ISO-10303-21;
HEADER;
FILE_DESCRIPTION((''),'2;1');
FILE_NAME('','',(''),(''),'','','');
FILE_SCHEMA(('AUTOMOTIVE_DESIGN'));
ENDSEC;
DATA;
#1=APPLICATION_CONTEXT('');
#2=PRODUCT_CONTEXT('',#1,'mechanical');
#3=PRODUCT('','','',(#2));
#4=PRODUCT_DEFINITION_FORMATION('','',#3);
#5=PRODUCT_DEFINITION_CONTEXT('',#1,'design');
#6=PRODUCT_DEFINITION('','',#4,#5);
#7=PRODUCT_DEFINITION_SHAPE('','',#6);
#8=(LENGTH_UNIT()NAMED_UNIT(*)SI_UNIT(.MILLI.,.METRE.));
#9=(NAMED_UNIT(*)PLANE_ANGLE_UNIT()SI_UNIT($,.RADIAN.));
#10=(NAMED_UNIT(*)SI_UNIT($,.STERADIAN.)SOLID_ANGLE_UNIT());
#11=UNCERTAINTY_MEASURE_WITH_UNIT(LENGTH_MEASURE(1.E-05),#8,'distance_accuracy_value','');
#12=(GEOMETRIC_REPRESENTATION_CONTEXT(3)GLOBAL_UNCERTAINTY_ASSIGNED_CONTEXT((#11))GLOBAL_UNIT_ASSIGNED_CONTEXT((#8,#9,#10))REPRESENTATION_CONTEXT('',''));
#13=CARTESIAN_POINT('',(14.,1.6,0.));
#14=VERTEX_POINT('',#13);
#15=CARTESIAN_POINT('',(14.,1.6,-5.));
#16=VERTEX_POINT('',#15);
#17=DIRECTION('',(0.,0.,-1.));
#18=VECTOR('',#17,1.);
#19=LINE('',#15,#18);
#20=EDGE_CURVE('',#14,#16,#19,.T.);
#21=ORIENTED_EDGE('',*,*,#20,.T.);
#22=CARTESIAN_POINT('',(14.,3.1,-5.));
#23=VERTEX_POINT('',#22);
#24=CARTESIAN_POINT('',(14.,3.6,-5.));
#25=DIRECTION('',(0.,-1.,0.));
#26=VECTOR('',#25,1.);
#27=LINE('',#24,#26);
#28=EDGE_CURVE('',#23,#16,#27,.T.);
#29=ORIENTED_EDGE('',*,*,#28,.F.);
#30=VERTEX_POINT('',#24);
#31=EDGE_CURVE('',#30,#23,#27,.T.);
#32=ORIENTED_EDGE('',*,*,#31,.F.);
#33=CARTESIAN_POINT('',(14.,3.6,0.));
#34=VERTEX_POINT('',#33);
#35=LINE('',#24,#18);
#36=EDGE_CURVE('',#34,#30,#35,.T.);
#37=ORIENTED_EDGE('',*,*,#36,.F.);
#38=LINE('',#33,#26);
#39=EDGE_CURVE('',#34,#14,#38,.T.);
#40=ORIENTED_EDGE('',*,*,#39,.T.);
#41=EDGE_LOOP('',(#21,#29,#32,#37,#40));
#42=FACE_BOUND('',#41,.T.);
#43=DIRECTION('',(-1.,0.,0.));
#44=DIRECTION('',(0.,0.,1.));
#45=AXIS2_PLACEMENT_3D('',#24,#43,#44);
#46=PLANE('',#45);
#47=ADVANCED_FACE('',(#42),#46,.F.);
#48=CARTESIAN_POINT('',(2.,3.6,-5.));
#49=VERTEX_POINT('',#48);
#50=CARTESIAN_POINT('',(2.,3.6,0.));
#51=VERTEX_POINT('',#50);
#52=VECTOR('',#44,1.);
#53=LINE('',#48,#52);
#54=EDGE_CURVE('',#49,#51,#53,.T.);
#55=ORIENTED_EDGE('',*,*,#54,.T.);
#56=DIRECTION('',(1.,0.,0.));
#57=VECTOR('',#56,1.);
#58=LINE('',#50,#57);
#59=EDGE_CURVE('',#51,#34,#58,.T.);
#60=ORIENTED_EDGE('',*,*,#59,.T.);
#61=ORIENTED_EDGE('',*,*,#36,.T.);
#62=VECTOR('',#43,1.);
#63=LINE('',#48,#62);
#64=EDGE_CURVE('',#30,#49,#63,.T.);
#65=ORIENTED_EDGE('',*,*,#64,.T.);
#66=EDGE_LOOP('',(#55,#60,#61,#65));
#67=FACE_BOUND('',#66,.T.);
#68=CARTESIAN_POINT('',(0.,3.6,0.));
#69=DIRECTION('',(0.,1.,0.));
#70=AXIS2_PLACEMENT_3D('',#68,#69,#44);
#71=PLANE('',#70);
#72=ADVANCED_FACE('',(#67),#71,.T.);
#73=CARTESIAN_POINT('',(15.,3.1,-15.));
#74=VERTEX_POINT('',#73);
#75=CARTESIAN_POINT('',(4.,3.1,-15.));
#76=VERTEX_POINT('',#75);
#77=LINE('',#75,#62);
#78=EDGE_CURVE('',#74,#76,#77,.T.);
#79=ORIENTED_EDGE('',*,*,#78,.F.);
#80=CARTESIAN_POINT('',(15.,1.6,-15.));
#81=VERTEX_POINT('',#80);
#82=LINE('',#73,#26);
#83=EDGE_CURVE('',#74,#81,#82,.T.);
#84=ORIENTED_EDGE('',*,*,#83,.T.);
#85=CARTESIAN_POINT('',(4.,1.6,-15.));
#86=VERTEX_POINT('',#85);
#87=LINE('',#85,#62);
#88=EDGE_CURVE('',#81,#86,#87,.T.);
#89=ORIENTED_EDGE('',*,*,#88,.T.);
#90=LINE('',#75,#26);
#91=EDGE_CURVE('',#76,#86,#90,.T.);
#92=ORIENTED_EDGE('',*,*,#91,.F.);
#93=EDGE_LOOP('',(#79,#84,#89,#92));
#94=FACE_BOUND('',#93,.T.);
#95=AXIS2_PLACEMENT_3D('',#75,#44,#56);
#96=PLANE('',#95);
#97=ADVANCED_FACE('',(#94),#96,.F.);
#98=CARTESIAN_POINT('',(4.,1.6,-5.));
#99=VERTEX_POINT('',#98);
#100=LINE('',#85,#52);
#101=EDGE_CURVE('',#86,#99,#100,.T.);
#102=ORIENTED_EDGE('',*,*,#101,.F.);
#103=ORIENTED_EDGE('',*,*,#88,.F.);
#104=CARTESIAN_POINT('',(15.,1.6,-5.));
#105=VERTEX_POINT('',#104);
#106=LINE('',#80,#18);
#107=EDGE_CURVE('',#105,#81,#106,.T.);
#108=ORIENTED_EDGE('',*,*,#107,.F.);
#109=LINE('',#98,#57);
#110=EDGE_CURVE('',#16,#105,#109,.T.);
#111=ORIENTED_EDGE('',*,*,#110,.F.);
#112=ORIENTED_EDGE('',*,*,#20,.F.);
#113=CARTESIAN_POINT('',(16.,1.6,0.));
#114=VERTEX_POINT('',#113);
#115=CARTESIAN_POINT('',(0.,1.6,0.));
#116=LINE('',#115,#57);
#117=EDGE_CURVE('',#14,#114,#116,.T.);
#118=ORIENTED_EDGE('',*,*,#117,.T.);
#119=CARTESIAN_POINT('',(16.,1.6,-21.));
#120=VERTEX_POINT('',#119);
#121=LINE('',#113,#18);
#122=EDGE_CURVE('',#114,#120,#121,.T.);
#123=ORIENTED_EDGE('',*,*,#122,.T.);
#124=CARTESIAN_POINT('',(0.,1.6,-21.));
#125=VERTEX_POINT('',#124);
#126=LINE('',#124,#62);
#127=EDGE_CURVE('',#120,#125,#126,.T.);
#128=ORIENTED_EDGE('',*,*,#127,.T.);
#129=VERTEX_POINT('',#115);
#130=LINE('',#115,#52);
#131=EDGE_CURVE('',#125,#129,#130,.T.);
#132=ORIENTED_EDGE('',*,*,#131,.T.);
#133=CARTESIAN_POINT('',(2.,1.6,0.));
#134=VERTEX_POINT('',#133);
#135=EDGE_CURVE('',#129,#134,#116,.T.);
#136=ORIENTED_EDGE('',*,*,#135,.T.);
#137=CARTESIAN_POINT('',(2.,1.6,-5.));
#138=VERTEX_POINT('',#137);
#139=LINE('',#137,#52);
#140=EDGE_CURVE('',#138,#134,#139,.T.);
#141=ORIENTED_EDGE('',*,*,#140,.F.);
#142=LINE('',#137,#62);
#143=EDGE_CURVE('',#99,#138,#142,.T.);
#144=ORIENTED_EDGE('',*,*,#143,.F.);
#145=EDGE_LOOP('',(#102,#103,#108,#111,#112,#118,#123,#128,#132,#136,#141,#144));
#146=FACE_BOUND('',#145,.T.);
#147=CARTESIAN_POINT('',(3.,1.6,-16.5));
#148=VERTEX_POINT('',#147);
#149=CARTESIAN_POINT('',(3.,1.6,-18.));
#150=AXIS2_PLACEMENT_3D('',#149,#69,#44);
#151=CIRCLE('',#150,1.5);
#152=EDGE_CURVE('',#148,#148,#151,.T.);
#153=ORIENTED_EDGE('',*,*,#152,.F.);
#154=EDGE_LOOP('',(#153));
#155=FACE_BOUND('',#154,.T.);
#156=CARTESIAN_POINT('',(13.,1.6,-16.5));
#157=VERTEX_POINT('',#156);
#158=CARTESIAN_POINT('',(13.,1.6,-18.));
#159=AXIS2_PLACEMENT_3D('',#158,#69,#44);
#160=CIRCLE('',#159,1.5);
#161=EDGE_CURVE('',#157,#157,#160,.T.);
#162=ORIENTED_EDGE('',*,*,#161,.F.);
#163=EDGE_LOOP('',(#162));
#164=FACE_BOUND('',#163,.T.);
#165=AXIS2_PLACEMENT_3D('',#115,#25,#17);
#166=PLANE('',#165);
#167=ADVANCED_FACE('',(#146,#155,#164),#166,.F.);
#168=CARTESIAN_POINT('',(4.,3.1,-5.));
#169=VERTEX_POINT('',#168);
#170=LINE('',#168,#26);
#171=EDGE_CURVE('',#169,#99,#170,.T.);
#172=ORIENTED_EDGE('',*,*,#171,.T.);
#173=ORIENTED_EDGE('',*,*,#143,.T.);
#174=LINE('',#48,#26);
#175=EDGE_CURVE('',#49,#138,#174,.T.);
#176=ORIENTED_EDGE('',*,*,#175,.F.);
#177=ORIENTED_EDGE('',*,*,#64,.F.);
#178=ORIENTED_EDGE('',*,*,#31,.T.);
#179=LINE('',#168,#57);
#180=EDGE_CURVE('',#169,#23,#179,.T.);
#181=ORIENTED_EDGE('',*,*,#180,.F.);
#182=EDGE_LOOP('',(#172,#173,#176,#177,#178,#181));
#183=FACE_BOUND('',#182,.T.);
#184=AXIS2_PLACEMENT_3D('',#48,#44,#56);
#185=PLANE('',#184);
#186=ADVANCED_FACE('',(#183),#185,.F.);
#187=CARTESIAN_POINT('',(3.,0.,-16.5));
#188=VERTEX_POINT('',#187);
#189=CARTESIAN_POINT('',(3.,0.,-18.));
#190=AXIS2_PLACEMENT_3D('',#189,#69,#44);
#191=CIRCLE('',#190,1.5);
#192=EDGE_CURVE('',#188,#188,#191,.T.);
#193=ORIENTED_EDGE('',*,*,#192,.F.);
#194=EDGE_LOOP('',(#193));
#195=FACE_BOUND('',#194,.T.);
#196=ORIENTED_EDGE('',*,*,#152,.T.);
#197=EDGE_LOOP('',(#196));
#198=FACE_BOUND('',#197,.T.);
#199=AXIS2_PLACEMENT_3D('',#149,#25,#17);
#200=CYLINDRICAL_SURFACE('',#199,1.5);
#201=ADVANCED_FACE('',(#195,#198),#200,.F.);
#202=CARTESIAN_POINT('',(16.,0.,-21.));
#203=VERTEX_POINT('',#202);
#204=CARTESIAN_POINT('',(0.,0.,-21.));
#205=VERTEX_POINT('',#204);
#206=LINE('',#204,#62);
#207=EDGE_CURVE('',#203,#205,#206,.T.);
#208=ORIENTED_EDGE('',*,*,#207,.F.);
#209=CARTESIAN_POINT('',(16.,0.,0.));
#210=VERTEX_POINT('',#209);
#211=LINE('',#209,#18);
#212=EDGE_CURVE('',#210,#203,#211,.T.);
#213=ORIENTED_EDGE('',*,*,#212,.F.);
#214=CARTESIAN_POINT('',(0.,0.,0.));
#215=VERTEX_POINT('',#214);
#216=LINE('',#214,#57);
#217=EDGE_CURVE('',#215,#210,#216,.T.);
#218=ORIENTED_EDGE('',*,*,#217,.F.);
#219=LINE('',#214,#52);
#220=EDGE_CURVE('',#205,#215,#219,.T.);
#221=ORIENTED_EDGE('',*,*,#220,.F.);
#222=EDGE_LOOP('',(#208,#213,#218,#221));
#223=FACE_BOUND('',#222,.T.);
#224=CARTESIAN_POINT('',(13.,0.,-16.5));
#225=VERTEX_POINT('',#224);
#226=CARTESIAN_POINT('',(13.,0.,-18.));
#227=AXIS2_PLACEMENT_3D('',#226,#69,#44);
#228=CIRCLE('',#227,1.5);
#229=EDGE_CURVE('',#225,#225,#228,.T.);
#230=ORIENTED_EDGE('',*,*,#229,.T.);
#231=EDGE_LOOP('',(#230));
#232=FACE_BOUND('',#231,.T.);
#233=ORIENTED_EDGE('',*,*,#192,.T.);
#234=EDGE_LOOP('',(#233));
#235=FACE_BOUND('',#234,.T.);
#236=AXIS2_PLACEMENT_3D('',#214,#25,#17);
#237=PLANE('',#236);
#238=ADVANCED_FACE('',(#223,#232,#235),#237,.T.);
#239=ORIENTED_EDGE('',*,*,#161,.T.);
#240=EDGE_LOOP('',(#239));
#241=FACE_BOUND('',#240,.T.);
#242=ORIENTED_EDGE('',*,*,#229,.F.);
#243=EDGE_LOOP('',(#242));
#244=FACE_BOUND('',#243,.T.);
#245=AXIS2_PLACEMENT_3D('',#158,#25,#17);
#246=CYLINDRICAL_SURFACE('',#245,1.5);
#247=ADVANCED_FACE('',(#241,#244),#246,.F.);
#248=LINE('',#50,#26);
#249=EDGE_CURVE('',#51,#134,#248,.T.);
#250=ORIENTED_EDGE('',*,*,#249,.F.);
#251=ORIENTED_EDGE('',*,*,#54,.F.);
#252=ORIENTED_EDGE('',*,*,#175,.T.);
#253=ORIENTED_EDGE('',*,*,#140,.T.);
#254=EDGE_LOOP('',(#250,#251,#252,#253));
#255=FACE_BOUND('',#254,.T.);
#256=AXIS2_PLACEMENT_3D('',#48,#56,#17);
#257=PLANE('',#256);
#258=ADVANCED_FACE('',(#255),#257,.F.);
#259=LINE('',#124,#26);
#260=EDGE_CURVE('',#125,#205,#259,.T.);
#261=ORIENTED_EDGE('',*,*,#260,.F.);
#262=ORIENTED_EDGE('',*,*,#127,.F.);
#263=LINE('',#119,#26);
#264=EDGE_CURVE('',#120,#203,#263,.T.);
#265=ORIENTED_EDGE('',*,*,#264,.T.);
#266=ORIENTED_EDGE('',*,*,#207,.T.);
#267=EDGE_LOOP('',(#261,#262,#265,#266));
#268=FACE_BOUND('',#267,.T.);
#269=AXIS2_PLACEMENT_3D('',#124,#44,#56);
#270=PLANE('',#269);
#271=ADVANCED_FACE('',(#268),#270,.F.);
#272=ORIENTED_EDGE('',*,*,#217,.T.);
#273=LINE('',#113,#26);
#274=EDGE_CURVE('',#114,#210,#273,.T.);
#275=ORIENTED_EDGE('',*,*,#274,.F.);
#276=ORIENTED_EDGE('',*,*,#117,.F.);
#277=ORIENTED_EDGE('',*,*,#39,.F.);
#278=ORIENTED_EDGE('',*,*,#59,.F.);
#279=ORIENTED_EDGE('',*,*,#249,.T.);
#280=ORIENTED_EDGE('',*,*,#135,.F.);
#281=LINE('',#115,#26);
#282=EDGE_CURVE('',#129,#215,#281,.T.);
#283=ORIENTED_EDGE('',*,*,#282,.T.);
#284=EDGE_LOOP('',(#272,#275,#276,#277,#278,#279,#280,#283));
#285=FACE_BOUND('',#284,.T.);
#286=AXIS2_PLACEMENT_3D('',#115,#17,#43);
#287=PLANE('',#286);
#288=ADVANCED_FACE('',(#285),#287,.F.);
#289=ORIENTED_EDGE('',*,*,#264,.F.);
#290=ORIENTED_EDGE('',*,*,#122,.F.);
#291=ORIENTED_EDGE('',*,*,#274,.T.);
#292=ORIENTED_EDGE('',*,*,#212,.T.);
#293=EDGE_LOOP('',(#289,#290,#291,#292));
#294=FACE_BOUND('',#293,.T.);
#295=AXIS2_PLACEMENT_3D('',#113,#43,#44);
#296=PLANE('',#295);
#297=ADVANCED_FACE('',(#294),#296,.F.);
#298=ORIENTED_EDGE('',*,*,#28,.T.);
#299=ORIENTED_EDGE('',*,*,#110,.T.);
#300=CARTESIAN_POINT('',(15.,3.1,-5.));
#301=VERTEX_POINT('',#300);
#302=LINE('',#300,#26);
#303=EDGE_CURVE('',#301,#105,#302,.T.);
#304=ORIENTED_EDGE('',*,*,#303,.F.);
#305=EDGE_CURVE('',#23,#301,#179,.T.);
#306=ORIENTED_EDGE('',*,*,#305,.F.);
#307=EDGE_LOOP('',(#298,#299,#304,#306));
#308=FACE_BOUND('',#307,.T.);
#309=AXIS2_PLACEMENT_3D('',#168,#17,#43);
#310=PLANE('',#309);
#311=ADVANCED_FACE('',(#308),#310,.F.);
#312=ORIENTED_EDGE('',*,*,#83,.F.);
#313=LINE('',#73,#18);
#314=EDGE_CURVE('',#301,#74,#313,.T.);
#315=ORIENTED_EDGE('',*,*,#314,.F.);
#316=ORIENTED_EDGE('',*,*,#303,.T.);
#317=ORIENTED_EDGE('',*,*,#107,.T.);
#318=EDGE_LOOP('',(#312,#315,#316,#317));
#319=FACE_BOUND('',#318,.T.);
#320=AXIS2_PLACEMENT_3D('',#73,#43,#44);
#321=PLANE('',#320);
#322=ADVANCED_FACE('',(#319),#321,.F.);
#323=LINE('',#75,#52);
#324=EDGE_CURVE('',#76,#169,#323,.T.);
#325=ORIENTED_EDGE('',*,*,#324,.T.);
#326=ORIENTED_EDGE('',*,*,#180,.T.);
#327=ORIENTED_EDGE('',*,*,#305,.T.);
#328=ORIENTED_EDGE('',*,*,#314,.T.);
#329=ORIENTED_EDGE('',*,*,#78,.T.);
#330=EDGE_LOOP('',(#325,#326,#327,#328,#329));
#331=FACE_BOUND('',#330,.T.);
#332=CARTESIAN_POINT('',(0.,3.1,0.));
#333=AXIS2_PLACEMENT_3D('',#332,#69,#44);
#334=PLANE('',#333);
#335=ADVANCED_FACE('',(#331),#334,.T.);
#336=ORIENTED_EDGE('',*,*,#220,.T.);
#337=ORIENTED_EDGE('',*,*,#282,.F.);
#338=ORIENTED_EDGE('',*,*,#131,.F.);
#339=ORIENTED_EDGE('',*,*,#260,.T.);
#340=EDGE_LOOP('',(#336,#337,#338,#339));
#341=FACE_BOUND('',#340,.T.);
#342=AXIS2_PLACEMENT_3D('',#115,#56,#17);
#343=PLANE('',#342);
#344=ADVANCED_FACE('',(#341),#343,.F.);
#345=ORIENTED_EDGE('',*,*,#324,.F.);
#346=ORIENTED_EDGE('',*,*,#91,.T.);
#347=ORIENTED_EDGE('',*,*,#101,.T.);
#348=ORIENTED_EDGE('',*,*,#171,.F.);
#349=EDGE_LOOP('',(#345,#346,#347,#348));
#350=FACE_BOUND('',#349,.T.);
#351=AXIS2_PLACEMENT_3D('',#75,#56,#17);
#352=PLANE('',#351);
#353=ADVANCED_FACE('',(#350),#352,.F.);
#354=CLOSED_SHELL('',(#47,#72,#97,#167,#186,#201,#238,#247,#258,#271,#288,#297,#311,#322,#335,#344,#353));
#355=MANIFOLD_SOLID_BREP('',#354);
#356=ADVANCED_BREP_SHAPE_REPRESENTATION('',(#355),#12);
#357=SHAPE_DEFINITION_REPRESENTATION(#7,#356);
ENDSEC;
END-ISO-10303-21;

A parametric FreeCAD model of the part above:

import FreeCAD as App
import Part
import Sketcher
from FreeCAD import Vector


def add_polygon(sketch, points):
    """Adds a closed chain of lines whose ends are joined by coincident constraints."""
    first, n = sketch.GeometryCount, len(points)
    for a, b in zip(points, points[1:] + points[:1]):
        sketch.addGeometry(Part.LineSegment(App.Vector(*a, 0), App.Vector(*b, 0)), False)
    for i in range(n):
        sketch.addConstraint(Sketcher.Constraint("Coincident", first + i, 2, first + (i + 1) % n, 1))

doc = App.newDocument("Part")
params = doc.addObject("Spreadsheet::Sheet", "Params")
for row, (alias, value) in enumerate([
    ("sketch1_diameter", "3 mm"),
    ("sketch1_width", "16 mm"),
    ("sketch1_height", "21 mm"),
    ("pad1_length", "1.6 mm"),
    ("sketch2_width", "11 mm"),
    ("sketch2_height", "10 mm"),
    ("pad2_length", "1.5 mm"),
    ("sketch3_width", "12 mm"),
    ("sketch3_height", "5 mm"),
    ("pad3_length", "2 mm"),
], start=1):
    params.set(f"A{row}", alias)
    params.set(f"B{row}", "=" + value)
    params.setAlias(f"B{row}", alias)

body = doc.addObject("PartDesign::Body", "Body")

sketch1 = doc.addObject("Sketcher::SketchObject", "Sketch")
body.addObject(sketch1)
sketch1.AttachmentSupport = (doc.XZ_Plane, [""])
sketch1.MapMode = "FlatFace"
add_polygon(sketch1, [(0, -21), (0, 0), (16, 0), (16, -21)])
sketch1.addGeometry(Part.Circle(Vector(3, -18, 0), Vector(0, 0, 1), 1.5), False)
sketch1.addGeometry(Part.Circle(Vector(13, -18, 0), Vector(0, 0, 1), 1.5), False)
sketch1.addConstraint([
    Sketcher.Constraint("Vertical", 0),
    Sketcher.Constraint("Horizontal", 1),
    Sketcher.Constraint("Vertical", 2),
    Sketcher.Constraint("Horizontal", 3),
    Sketcher.Constraint("Coincident", 0, 2, -1, 1),
    Sketcher.Constraint("Equal", 4, 5),
    Sketcher.Constraint("Horizontal", 4, 3, 5, 3),
    Sketcher.Constraint("Diameter", 4, 3.0),
    Sketcher.Constraint("DistanceX", 1, 1, 1, 2, 16.0),
    Sketcher.Constraint("DistanceY", 0, 1, 0, 2, 21.0),
    Sketcher.Constraint("DistanceX", -1, 1, 4, 3, 3.0),
    Sketcher.Constraint("DistanceY", 4, 3, -1, 1, 18.0),
    Sketcher.Constraint("DistanceX", -1, 1, 5, 3, 13.0),
])
sketch1.setExpression("Constraints[11]", "Params.sketch1_diameter")
sketch1.setExpression("Constraints[12]", "Params.sketch1_width")
sketch1.setExpression("Constraints[13]", "Params.sketch1_height")
pad1 = doc.addObject("PartDesign::Pad", "Pad")
body.addObject(pad1)
pad1.Profile = sketch1
pad1.setExpression("Length", "Params.pad1_length")
pad1.Reversed = True

sketch2 = doc.addObject("Sketcher::SketchObject", "Sketch001")
body.addObject(sketch2)
sketch2.AttachmentSupport = (doc.XZ_Plane, [""])
sketch2.MapMode = "FlatFace"
sketch2.AttachmentOffset = App.Placement(Vector(0, 0, -1.6), App.Rotation())
add_polygon(sketch2, [(4, -15), (4, -5), (15, -5), (15, -15)])
sketch2.addConstraint([
    Sketcher.Constraint("Vertical", 0),
    Sketcher.Constraint("Horizontal", 1),
    Sketcher.Constraint("Vertical", 2),
    Sketcher.Constraint("Horizontal", 3),
    Sketcher.Constraint("DistanceX", 1, 1, 1, 2, 11.0),
    Sketcher.Constraint("DistanceY", 0, 1, 0, 2, 10.0),
    Sketcher.Constraint("DistanceX", -1, 1, 0, 2, 4.0),
    Sketcher.Constraint("DistanceY", 0, 2, -1, 1, 5.0),
])
sketch2.setExpression("Constraints[8]", "Params.sketch2_width")
sketch2.setExpression("Constraints[9]", "Params.sketch2_height")
pad2 = doc.addObject("PartDesign::Pad", "Pad001")
body.addObject(pad2)
pad2.Profile = sketch2
pad2.setExpression("Length", "Params.pad2_length")
pad2.Reversed = True

sketch3 = doc.addObject("Sketcher::SketchObject", "Sketch002")
body.addObject(sketch3)
sketch3.AttachmentSupport = (doc.XZ_Plane, [""])
sketch3.MapMode = "FlatFace"
sketch3.AttachmentOffset = App.Placement(Vector(0, 0, -1.6), App.Rotation())
add_polygon(sketch3, [(2, -5), (2, 0), (14, 0), (14, -5)])
sketch3.addConstraint([
    Sketcher.Constraint("Vertical", 0),
    Sketcher.Constraint("Horizontal", 1),
    Sketcher.Constraint("Vertical", 2),
    Sketcher.Constraint("Horizontal", 3),
    Sketcher.Constraint("PointOnObject", 0, 2, -1),
    Sketcher.Constraint("DistanceX", 1, 1, 1, 2, 12.0),
    Sketcher.Constraint("DistanceY", 0, 1, 0, 2, 5.0),
    Sketcher.Constraint("DistanceX", -1, 1, 0, 2, 2.0),
])
sketch3.setExpression("Constraints[9]", "Params.sketch3_width")
sketch3.setExpression("Constraints[10]", "Params.sketch3_height")
pad3 = doc.addObject("PartDesign::Pad", "Pad002")
body.addObject(pad3)
pad3.Profile = sketch3
pad3.setExpression("Length", "Params.pad3_length")
pad3.Reversed = True

doc.recompute()
